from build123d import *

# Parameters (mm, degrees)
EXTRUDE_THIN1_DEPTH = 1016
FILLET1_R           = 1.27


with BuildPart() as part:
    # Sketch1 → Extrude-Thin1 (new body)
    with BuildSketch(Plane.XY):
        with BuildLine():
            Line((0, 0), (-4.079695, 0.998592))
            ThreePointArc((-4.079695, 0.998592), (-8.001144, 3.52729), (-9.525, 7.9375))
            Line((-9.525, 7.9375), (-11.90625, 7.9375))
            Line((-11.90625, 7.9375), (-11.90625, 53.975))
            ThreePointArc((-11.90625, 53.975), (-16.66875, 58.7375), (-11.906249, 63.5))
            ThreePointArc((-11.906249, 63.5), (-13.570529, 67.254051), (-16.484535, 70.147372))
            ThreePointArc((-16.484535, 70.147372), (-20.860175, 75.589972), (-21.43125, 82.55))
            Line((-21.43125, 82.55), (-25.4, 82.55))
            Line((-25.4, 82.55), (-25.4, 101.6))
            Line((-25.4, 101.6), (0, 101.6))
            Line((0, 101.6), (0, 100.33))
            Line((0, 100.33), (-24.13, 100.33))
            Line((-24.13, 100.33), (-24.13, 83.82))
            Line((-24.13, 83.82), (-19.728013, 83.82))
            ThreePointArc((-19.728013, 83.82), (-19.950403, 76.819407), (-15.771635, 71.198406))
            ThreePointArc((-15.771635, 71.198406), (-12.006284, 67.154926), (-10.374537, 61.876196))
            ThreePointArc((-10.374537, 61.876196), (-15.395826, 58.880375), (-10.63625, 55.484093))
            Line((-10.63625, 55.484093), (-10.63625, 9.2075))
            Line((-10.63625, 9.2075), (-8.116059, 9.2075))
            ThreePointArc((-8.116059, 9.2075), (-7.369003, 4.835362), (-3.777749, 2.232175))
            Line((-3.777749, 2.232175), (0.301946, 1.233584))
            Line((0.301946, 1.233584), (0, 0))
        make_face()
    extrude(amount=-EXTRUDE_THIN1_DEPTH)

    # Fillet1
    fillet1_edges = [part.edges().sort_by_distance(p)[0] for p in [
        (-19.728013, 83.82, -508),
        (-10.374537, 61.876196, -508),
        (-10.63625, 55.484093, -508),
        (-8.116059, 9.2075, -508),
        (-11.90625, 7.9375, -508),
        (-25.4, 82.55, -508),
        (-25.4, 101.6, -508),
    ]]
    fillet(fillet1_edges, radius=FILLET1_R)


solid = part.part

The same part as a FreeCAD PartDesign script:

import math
import FreeCAD as App
import Part
import Sketcher

V = App.Vector
Q = App.Units.Quantity


def edges_at(feature, points):
    """Names of the edges that pass closest to the given points."""
    edges = feature.Shape.Edges
    near = lambda p: min(range(len(edges)), key=lambda i: edges[i].distToShape(Part.Vertex(*p))[0])
    return sorted({f"Edge{near(p) + 1}" for p in points})

doc = App.newDocument("Part")
body = doc.addObject("PartDesign::Body", "Body")

sketch1 = body.newObject("Sketcher::SketchObject", "Sketch")
sketch1.AttachmentSupport = (doc.getObject("XY_Plane"), [""])
sketch1.MapMode = "FlatFace"
sketch1.addGeometry(Part.LineSegment(V(-4.1, 1, 0), V(0, 0, 0)), False)
sketch1.addGeometry(Part.LineSegment(V(0, 0, 0), V(0.3, 1.2, 0)), False)
sketch1.addGeometry(Part.LineSegment(V(0.3, 1.2, 0), V(-3.8, 2.2, 0)), False)
sketch1.addGeometry(Part.ArcOfCircle(Part.Circle(V(-2.4, 7.9, 0), V(0, 0, 1), 5.9), math.radians(168), math.radians(256)), False)
sketch1.addGeometry(Part.LineSegment(V(-8.1, 9.2, 0), V(-10.6, 9.2, 0)), False)
sketch1.addGeometry(Part.LineSegment(V(-10.6, 9.2, 0), V(-10.6, 55.5, 0)), False)
sketch1.addGeometry(Part.ArcOfCircle(Part.Circle(V(-11.9, 58.7, 0), V(0, 0, 1), 3.5), math.radians(64), math.radians(291)), False)
sketch1.addGeometry(Part.ArcOfCircle(Part.Circle(V(-22.7, 61, 0), V(0, 0, 1), 12.4), math.radians(4), math.radians(56)), False)
sketch1.addGeometry(Part.ArcOfCircle(Part.Circle(V(-9.8, 80, 0), V(0, 0, 1), 10.6), math.radians(159), math.radians(236)), False)
sketch1.addGeometry(Part.LineSegment(V(-19.7, 83.8, 0), V(-24.1, 83.8, 0)), False)
sketch1.addGeometry(Part.LineSegment(V(-24.1, 83.8, 0), V(-24.1, 100.3, 0)), False)
sketch1.addGeometry(Part.LineSegment(V(-24.1, 100.3, 0), V(0, 100.3, 0)), False)
sketch1.addGeometry(Part.LineSegment(V(0, 100.3, 0), V(0, 101.6, 0)), False)
sketch1.addGeometry(Part.LineSegment(V(0, 101.6, 0), V(-25.4, 101.6, 0)), False)
sketch1.addGeometry(Part.LineSegment(V(-25.4, 101.6, 0), V(-25.4, 82.5, 0)), False)
sketch1.addGeometry(Part.LineSegment(V(-25.4, 82.5, 0), V(-21.4, 82.5, 0)), False)
sketch1.addGeometry(Part.ArcOfCircle(Part.Circle(V(-9.8, 80, 0), V(0, 0, 1), 11.9), math.radians(168), math.radians(236)), False)
sketch1.addGeometry(Part.ArcOfCircle(Part.Circle(V(-22.7, 61, 0), V(0, 0, 1), 11.1), math.radians(13), math.radians(56)), False)
sketch1.addGeometry(Part.ArcOfCircle(Part.Circle(V(-11.9, 58.7, 0), V(0, 0, 1), 4.8), math.radians(90), math.radians(270)), False)
sketch1.addGeometry(Part.LineSegment(V(-11.9, 54, 0), V(-11.9, 7.9, 0)), False)
sketch1.addGeometry(Part.LineSegment(V(-11.9, 7.9, 0), V(-9.5, 7.9, 0)), False)
sketch1.addGeometry(Part.ArcOfCircle(Part.Circle(V(-2.4, 7.9, 0), V(0, 0, 1), 7.1), math.radians(-180), math.radians(-104)), False)
sketch1.addConstraint(Sketcher.Constraint("Coincident", 0, 2, 1, 1))
sketch1.addConstraint(Sketcher.Constraint("Coincident", 1, 2, 2, 1))
sketch1.addConstraint(Sketcher.Constraint("Tangent", 2, 2, 3, 2))
sketch1.addConstraint(Sketcher.Constraint("Coincident", 3, 1, 4, 1))
sketch1.addConstraint(Sketcher.Constraint("Coincident", 4, 2, 5, 1))
sketch1.addConstraint(Sketcher.Constraint("Coincident", 5, 2, 6, 2))
sketch1.addConstraint(Sketcher.Constraint("Coincident", 6, 1, 7, 1))
sketch1.addConstraint(Sketcher.Constraint("Tangent", 7, 2, 8, 2))
sketch1.addConstraint(Sketcher.Constraint("Coincident", 8, 1, 9, 1))
sketch1.addConstraint(Sketcher.Constraint("Coincident", 9, 2, 10, 1))
sketch1.addConstraint(Sketcher.Constraint("Coincident", 10, 2, 11, 1))
sketch1.addConstraint(Sketcher.Constraint("Coincident", 11, 2, 12, 1))
sketch1.addConstraint(Sketcher.Constraint("Coincident", 12, 2, 13, 1))
sketch1.addConstraint(Sketcher.Constraint("Coincident", 13, 2, 14, 1))
sketch1.addConstraint(Sketcher.Constraint("Coincident", 14, 2, 15, 1))
sketch1.addConstraint(Sketcher.Constraint("Coincident", 15, 2, 16, 1))
sketch1.addConstraint(Sketcher.Constraint("Tangent", 16, 2, 17, 2))
sketch1.addConstraint(Sketcher.Constraint("Coincident", 17, 1, 18, 1))
sketch1.addConstraint(Sketcher.Constraint("Coincident", 18, 2, 19, 1))
sketch1.addConstraint(Sketcher.Constraint("Coincident", 19, 2, 20, 1))
sketch1.addConstraint(Sketcher.Constraint("Coincident", 20, 2, 21, 1))
sketch1.addConstraint(Sketcher.Constraint("Tangent", 21, 2, 0, 1))
sketch1.addConstraint(Sketcher.Constraint("Horizontal", 4))
sketch1.addConstraint(Sketcher.Constraint("Vertical", 5))
sketch1.addConstraint(Sketcher.Constraint("Horizontal", 9))
sketch1.addConstraint(Sketcher.Constraint("Vertical", 10))
sketch1.addConstraint(Sketcher.Constraint("Horizontal", 11))
sketch1.addConstraint(Sketcher.Constraint("Vertical", 12))
sketch1.addConstraint(Sketcher.Constraint("Horizontal", 13))
sketch1.addConstraint(Sketcher.Constraint("Vertical", 14))
sketch1.addConstraint(Sketcher.Constraint("Horizontal", 15))
sketch1.addConstraint(Sketcher.Constraint("Vertical", 19))
sketch1.addConstraint(Sketcher.Constraint("Horizontal", 20))
sketch1.addConstraint(Sketcher.Constraint("Coincident", 0, 2, -1, 1))
sketch1.addConstraint(Sketcher.Constraint("Coincident", 16, 3, 8, 3))
sketch1.addConstraint(Sketcher.Constraint("Coincident", 17, 3, 7, 3))
sketch1.addConstraint(Sketcher.Constraint("Coincident", 18, 3, 6, 3))
sketch1.addConstraint(Sketcher.Constraint("Coincident", 21, 3, 3, 3))
sketch1.addConstraint(Sketcher.Constraint("PointOnObject", 11, 2, -2))
sketch1.addConstraint(Sketcher.Constraint("Perpendicular", 0, 1))
sketch1.addConstraint(Sketcher.Constraint("Perpendicular", 1, 2))
sketch1.addConstraint(Sketcher.Constraint("Horizontal", 21, 3, 19, 2))
sketch1.addConstraint(Sketcher.Constraint("Vertical", 18, 3, 17, 1))
sketch1.addConstraint(Sketcher.Constraint("Vertical", 17, 1, 18, 2))
sketch1.addConstraint(Sketcher.Constraint("DistanceX", 13, 2, 13, 1, Q("1 in")))
sketch1.addConstraint(Sketcher.Constraint("DistanceY", -1, 1, 12, 2, Q("4 in")))
sketch1.addConstraint(Sketcher.Constraint("Radius", 16, Q("0.4687499 in")))
sketch1.addConstraint(Sketcher.Constraint("Radius", 18, Q("0.1875 in")))
sketch1.addConstraint(Sketcher.Constraint("Radius", 21, Q("0.28125 in")))
sketch1.addConstraint(Sketcher.Constraint("DistanceY", 3, 3, 6, 3, Q("2 in")))
sketch1.addConstraint(Sketcher.Constraint("DistanceX", 11, 1, 11, 2, Q("0.95 in")))
sketch1.addConstraint(Sketcher.Constraint("DistanceY", 10, 1, 10, 2, Q("0.65 in")))
sketch1.addConstraint(Sketcher.Constraint("DistanceY", 12, 1, 12, 2, Q("0.05 in")))
sketch1.addConstraint(Sketcher.Constraint("DistanceY", 14, 2, 14, 1, Q("0.75 in")))
sketch1.addConstraint(Sketcher.Constraint("DistanceY", -1, 1, 17, 1, Q("2.5 in")))
sketch1.addConstraint(Sketcher.Constraint("Radius", 6, Q("0.1375 in")))
sketch1.addConstraint(Sketcher.Constraint("Radius", 7, Q("0.4875 in")))
sketch1.addConstraint(Sketcher.Constraint("Distance", 1, Q("0.05 in")))
sketch1.addConstraint(Sketcher.Constraint("DistanceX", 15, 1, 15, 2, Q("0.15625 in")))
sketch1.addConstraint(Sketcher.Constraint("DistanceX", 20, 1, 20, 2, Q("0.09375 in")))
sketch1.addConstraint(Sketcher.Constraint("DistanceY", 7, 3, 8, 3, Q("0.75 in")))
sketch1.addConstraint(Sketcher.Constraint("DistanceY", 3, 3, 3, 1, Q("0.05 in")))
sketch1.addConstraint(Sketcher.Constraint("DistanceX", 6, 3, 5, 2, Q("0.05 in")))
sketch1.addConstraint(Sketcher.Constraint("DistanceX", 3, 3, -1, 1, Q("0.09375 in")))
sketch1.addConstraint(Sketcher.Constraint("Radius", 8, 10.636251))
pad1 = body.newObject("PartDesign::Pad", "Pad")
pad1.Profile = sketch1
pad1.Length = Q("40 in")
pad1.Reversed = True
doc.recompute()

fillet = body.newObject("PartDesign::Fillet", "Fillet")
fillet.Base = (pad1, edges_at(pad1, [
    (-19.728, 83.82, -508),
    (-10.375, 61.876, -508),
    (-10.636, 55.484, -508),
    (-8.116, 9.207, -508),
    (-11.906, 7.938, -508),
    (-25.4, 82.55, -508),
    (-25.4, 101.6, -508),
]))
fillet.Radius = Q("0.05 in")

doc.recompute()
